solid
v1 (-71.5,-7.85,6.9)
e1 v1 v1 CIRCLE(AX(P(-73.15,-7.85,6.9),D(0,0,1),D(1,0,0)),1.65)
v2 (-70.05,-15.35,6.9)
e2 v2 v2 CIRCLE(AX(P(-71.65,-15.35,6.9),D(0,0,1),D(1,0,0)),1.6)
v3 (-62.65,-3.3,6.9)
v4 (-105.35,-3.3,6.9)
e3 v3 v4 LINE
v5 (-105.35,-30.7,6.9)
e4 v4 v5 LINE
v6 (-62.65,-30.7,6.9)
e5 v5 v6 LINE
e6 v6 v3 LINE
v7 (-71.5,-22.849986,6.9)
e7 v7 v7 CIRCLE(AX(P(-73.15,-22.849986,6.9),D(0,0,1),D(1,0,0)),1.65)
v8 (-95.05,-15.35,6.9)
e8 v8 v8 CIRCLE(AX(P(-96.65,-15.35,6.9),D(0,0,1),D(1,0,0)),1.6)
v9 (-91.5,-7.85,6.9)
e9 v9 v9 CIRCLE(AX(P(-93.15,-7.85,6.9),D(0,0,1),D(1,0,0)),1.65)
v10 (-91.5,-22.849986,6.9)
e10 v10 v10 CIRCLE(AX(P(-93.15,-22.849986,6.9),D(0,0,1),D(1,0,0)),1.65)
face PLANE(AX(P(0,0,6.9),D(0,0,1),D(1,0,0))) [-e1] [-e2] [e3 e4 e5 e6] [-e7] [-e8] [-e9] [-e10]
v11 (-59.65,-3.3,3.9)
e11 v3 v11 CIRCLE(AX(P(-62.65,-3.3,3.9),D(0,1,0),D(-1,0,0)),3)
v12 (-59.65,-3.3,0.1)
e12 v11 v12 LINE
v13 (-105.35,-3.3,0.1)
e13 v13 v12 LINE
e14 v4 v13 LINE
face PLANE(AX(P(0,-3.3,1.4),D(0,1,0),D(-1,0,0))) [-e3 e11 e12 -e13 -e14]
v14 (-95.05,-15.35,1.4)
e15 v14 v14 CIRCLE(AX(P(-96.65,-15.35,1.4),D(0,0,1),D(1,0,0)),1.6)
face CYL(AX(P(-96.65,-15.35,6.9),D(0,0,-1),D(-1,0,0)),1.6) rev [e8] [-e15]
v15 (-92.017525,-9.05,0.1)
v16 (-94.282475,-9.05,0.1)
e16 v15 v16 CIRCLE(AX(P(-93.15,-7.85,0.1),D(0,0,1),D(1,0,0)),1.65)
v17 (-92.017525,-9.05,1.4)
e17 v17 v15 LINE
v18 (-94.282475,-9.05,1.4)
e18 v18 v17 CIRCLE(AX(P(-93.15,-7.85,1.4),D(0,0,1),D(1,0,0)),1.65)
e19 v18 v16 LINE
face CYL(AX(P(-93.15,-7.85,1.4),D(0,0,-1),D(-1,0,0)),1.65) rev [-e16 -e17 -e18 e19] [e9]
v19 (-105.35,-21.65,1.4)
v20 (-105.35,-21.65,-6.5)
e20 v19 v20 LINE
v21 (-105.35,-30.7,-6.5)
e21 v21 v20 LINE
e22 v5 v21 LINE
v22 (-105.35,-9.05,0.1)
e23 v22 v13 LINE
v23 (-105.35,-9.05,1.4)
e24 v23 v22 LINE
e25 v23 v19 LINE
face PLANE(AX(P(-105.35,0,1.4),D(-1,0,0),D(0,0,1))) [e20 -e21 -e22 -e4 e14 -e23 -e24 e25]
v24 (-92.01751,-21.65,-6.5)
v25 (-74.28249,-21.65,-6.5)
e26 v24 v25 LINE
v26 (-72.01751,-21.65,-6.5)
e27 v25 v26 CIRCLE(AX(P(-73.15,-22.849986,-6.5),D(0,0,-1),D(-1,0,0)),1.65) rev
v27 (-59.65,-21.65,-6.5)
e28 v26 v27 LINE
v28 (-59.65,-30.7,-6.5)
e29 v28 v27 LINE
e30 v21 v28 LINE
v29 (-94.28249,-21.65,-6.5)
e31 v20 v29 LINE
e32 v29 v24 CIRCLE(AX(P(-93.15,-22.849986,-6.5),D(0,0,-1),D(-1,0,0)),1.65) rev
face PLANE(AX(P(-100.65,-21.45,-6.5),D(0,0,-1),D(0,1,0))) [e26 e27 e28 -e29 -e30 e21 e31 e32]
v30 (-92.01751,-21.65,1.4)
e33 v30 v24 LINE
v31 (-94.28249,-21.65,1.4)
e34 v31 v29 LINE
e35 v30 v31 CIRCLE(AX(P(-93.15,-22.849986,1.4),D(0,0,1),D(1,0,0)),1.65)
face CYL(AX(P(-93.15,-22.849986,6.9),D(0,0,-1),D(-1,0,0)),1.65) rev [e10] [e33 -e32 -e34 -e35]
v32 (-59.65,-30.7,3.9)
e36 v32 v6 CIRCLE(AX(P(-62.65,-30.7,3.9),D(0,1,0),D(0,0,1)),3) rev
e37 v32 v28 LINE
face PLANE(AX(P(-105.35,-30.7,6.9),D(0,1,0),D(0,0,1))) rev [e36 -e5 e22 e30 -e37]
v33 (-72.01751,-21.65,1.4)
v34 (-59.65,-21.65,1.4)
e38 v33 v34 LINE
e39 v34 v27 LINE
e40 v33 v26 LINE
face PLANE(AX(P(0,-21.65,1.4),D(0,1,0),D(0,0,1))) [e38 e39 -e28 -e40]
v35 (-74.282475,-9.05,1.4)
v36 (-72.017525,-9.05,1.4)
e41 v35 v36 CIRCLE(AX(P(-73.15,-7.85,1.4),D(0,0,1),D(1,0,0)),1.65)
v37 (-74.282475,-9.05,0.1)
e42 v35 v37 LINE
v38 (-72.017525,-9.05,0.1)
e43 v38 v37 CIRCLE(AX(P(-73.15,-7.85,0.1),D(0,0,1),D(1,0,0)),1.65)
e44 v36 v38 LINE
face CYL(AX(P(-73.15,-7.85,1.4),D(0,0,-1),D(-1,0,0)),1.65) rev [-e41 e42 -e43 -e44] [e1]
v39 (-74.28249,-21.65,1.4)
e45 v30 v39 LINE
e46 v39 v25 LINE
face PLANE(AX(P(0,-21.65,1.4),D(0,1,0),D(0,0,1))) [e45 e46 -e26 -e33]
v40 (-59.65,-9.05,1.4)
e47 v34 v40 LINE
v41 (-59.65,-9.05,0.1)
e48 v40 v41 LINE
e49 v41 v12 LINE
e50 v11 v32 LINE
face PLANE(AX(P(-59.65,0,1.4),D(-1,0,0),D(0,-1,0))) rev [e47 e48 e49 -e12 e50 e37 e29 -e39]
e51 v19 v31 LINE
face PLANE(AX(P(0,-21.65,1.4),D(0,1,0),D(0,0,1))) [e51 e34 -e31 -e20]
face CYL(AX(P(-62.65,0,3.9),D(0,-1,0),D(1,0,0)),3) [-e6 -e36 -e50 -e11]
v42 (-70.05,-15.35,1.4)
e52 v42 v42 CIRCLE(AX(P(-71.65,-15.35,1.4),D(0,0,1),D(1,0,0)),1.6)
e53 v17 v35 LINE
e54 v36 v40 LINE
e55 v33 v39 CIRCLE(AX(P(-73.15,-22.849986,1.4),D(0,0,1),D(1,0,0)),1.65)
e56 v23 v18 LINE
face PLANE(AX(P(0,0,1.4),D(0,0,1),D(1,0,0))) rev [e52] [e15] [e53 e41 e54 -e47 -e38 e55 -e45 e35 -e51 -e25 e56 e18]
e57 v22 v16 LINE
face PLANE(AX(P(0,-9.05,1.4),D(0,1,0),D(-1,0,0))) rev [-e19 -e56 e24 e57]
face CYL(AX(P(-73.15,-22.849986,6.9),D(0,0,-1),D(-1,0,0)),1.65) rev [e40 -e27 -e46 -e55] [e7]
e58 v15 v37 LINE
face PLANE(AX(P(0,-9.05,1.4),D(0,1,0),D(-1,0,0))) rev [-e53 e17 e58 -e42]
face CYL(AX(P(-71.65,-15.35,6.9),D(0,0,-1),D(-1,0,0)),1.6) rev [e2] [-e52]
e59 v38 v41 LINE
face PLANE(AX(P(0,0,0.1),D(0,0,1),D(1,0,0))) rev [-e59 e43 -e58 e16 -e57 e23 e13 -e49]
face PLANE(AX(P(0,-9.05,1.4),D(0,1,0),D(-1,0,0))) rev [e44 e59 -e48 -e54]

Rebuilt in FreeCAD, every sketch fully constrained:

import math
import FreeCAD as App
import Part
import Sketcher


def edges_at(feature, points):
    """Names of the edges that pass closest to the given points."""
    edges = feature.Shape.Edges
    near = lambda p: min(range(len(edges)), key=lambda i: edges[i].distToShape(Part.Vertex(*p))[0])
    return sorted({f"Edge{near(p) + 1}" for p in points})

doc = App.newDocument("Part")
body = doc.addObject("PartDesign::Body", "Body")

sketch1 = body.newObject("Sketcher::SketchObject", "Sketch")
sketch1.AttachmentSupport = (doc.getObject("XY_Plane"), [""])
sketch1.MapMode = "FlatFace"
sketch1.AttachmentOffset = App.Placement(App.Vector(0, 0, 0.1), App.Rotation())
sketch1.addGeometry([
    Part.LineSegment(App.Vector(-105.35, -3.3, 0), App.Vector(-105.35, -9.05, 0)),
    Part.LineSegment(App.Vector(-105.35, -9.05, 0), App.Vector(-94.282475, -9.05, 0)),
    Part.ArcOfCircle(Part.Circle(App.Vector(-93.15, -7.85, 0), App.Vector(0, 0, 1), 1.65), math.radians(0), math.radians(226.658242)),
    Part.ArcOfCircle(Part.Circle(App.Vector(-93.15, -7.85, 0), App.Vector(0, 0, 1), 1.65), math.radians(-46.658242), math.radians(0)),
    Part.LineSegment(App.Vector(-92.017525, -9.05, 0), App.Vector(-74.282475, -9.05, 0)),
    Part.ArcOfCircle(Part.Circle(App.Vector(-73.15, -7.85, 0), App.Vector(0, 0, 1), 1.65), math.radians(0), math.radians(226.658242)),
    Part.ArcOfCircle(Part.Circle(App.Vector(-73.15, -7.85, 0), App.Vector(0, 0, 1), 1.65), math.radians(-46.658242), math.radians(0)),
    Part.LineSegment(App.Vector(-72.017525, -9.05, 0), App.Vector(-59.65, -9.05, 0)),
    Part.LineSegment(App.Vector(-59.65, -9.05, 0), App.Vector(-59.65, -3.3, 0)),
    Part.LineSegment(App.Vector(-59.65, -3.3, 0), App.Vector(-105.35, -3.3, 0)),
], False)
sketch1.addConstraint([
    Sketcher.Constraint("Coincident", 0, 2, 1, 1),
    Sketcher.Constraint("Coincident", 1, 2, 2, 2),
    Sketcher.Constraint("Tangent", 2, 1, 3, 2),
    Sketcher.Constraint("Coincident", 3, 1, 4, 1),
    Sketcher.Constraint("Coincident", 4, 2, 5, 2),
    Sketcher.Constraint("Tangent", 5, 1, 6, 2),
    Sketcher.Constraint("Coincident", 6, 1, 7, 1),
    Sketcher.Constraint("Coincident", 7, 2, 8, 1),
    Sketcher.Constraint("Coincident", 8, 2, 9, 1),
    Sketcher.Constraint("Coincident", 9, 2, 0, 1),
    Sketcher.Constraint("Vertical", 0),
    Sketcher.Constraint("Horizontal", 1),
    Sketcher.Constraint("Horizontal", 4),
    Sketcher.Constraint("Horizontal", 7),
    Sketcher.Constraint("Vertical", 8),
    Sketcher.Constraint("Horizontal", 9),
    Sketcher.Constraint("Equal", 2, 3),
    Sketcher.Constraint("Equal", 3, 5),
    Sketcher.Constraint("Equal", 5, 6),
    Sketcher.Constraint("Horizontal", 3, 3, 5, 3),
    Sketcher.Constraint("Horizontal", 6, 3, 2, 1),
    Sketcher.Constraint("Horizontal", 1, 2, 3, 1),
    Sketcher.Constraint("Horizontal", 2, 1, 5, 1),
    Sketcher.Constraint("Horizontal", 4, 2, 6, 1),
    Sketcher.Constraint("Radius", 2, 1.65),
    Sketcher.Constraint("DistanceX", 9, 2, 9, 1, 45.7),
    Sketcher.Constraint("DistanceX", 3, 3, 5, 3, 20.0),
    Sketcher.Constraint("DistanceY", 0, 2, 0, 1, 5.75),
    Sketcher.Constraint("DistanceX", 2, 1, -1, 1, 91.5),
    Sketcher.Constraint("DistanceY", 8, 2, -1, 1, 3.3),
    Sketcher.Constraint("DistanceX", 0, 2, 2, 3, 12.2),
    Sketcher.Constraint("DistanceY", 0, 2, 2, 3, 1.2),
])
pad1 = body.newObject("PartDesign::Pad", "Pad")
pad1.Profile = sketch1
pad1.Length = 1.3
body2 = doc.addObject("PartDesign::Body", "Body001")

sketch2 = body2.newObject("Sketcher::SketchObject", "Sketch001")
sketch2.AttachmentSupport = (doc.getObject("XY_Plane001"), [""])
sketch2.MapMode = "FlatFace"
sketch2.AttachmentOffset = App.Placement(App.Vector(0, 0, 0.1), App.Rotation())
sketch2.addGeometry([
    Part.LineSegment(App.Vector(-105.35, -21.65, 0), App.Vector(-105.35, -30.7, 0)),
    Part.LineSegment(App.Vector(-105.35, -30.7, 0), App.Vector(-59.65, -30.7, 0)),
    Part.LineSegment(App.Vector(-59.65, -30.7, 0), App.Vector(-59.65, -21.65, 0)),
    Part.LineSegment(App.Vector(-59.65, -21.65, 0), App.Vector(-72.01751, -21.65, 0)),
    Part.ArcOfCircle(Part.Circle(App.Vector(-73.15, -22.849986, 0), App.Vector(0, 0, 1), 1.65), math.radians(0), math.radians(46.657557)),
    Part.ArcOfCircle(Part.Circle(App.Vector(-73.15, -22.849986, 0), App.Vector(0, 0, 1), 1.65), math.radians(133.342443), math.radians(360)),
    Part.LineSegment(App.Vector(-74.28249, -21.65, 0), App.Vector(-92.01751, -21.65, 0)),
    Part.ArcOfCircle(Part.Circle(App.Vector(-93.15, -22.849986, 0), App.Vector(0, 0, 1), 1.65), math.radians(0), math.radians(46.657557)),
    Part.ArcOfCircle(Part.Circle(App.Vector(-93.15, -22.849986, 0), App.Vector(0, 0, 1), 1.65), math.radians(133.342443), math.radians(360)),
    Part.LineSegment(App.Vector(-94.28249, -21.65, 0), App.Vector(-105.35, -21.65, 0)),
], False)
sketch2.addConstraint([
    Sketcher.Constraint("Coincident", 0, 2, 1, 1),
    Sketcher.Constraint("Coincident", 1, 2, 2, 1),
    Sketcher.Constraint("Coincident", 2, 2, 3, 1),
    Sketcher.Constraint("Coincident", 3, 2, 4, 2),
    Sketcher.Constraint("Tangent", 4, 1, 5, 2),
    Sketcher.Constraint("Coincident", 5, 1, 6, 1),
    Sketcher.Constraint("Coincident", 6, 2, 7, 2),
    Sketcher.Constraint("Tangent", 7, 1, 8, 2),
    Sketcher.Constraint("Coincident", 8, 1, 9, 1),
    Sketcher.Constraint("Coincident", 9, 2, 0, 1),
    Sketcher.Constraint("Vertical", 0),
    Sketcher.Constraint("Horizontal", 1),
    Sketcher.Constraint("Vertical", 2),
    Sketcher.Constraint("Horizontal", 3),
    Sketcher.Constraint("Horizontal", 6),
    Sketcher.Constraint("Horizontal", 9),
    Sketcher.Constraint("Equal", 4, 5),
    Sketcher.Constraint("Equal", 5, 7),
    Sketcher.Constraint("Equal", 7, 8),
    Sketcher.Constraint("Horizontal", 5, 3, 7, 3),
    Sketcher.Constraint("Horizontal", 8, 3, 4, 1),
    Sketcher.Constraint("Horizontal", 3, 2, 5, 1),
    Sketcher.Constraint("Horizontal", 4, 1, 7, 1),
    Sketcher.Constraint("Horizontal", 6, 2, 8, 1),
    Sketcher.Constraint("Radius", 4, 1.65),
    Sketcher.Constraint("DistanceX", 1, 1, 1, 2, 45.7),
    Sketcher.Constraint("DistanceX", 7, 3, 5, 3, 20.0),
    Sketcher.Constraint("DistanceY", 0, 2, 0, 1, 9.05),
    Sketcher.Constraint("DistanceY", 0, 2, -1, 1, 30.7),
    Sketcher.Constraint("DistanceX", 4, 1, -1, 1, 71.5),
    Sketcher.Constraint("DistanceX", 0, 2, 8, 3, 12.2),
    Sketcher.Constraint("DistanceX", 3, 2, 3, 1, 12.36751),
])
pad2 = body2.newObject("PartDesign::Pad", "Pad001")
pad2.Profile = sketch2
pad2.Type = "TwoLengths"
pad2.Length = 1.3
pad2.Length2 = 6.6
body.AllowCompound = True
doc.recompute()

boolean = body.newObject("PartDesign::Boolean", "Boolean")
boolean.Type = "Fuse"
boolean.addObjects([body2])

sketch3 = body.newObject("Sketcher::SketchObject", "Sketch002")
sketch3.AttachmentSupport = (doc.getObject("XY_Plane"), [""])
sketch3.MapMode = "FlatFace"
sketch3.AttachmentOffset = App.Placement(App.Vector(0, 0, 1.4), App.Rotation())
sketch3.addGeometry([
    Part.LineSegment(App.Vector(-105.35, -3.3, 0), App.Vector(-105.35, -30.7, 0)),
    Part.LineSegment(App.Vector(-105.35, -30.7, 0), App.Vector(-59.65, -30.7, 0)),
    Part.LineSegment(App.Vector(-59.65, -30.7, 0), App.Vector(-59.65, -3.3, 0)),
    Part.LineSegment(App.Vector(-59.65, -3.3, 0), App.Vector(-105.35, -3.3, 0)),
    Part.Circle(App.Vector(-93.15, -22.849986, 0), App.Vector(0, 0, 1), 1.65),
    Part.Circle(App.Vector(-96.65, -15.35, 0), App.Vector(0, 0, 1), 1.6),
    Part.Circle(App.Vector(-73.15, -22.849986, 0), App.Vector(0, 0, 1), 1.65),
    Part.Circle(App.Vector(-71.65, -15.35, 0), App.Vector(0, 0, 1), 1.6),
    Part.Circle(App.Vector(-93.15, -7.85, 0), App.Vector(0, 0, 1), 1.65),
    Part.Circle(App.Vector(-73.15, -7.85, 0), App.Vector(0, 0, 1), 1.65),
], False)
sketch3.addConstraint([
    Sketcher.Constraint("Coincident", 0, 2, 1, 1),
    Sketcher.Constraint("Coincident", 1, 2, 2, 1),
    Sketcher.Constraint("Coincident", 2, 2, 3, 1),
    Sketcher.Constraint("Coincident", 3, 2, 0, 1),
    Sketcher.Constraint("Vertical", 0),
    Sketcher.Constraint("Horizontal", 1),
    Sketcher.Constraint("Vertical", 2),
    Sketcher.Constraint("Horizontal", 3),
    Sketcher.Constraint("Equal", 4, 6),
    Sketcher.Constraint("Equal", 5, 7),
    Sketcher.Constraint("Equal", 6, 8),
    Sketcher.Constraint("Equal", 8, 9),
    Sketcher.Constraint("Horizontal", 4, 3, 6, 3),
    Sketcher.Constraint("Horizontal", 5, 3, 7, 3),
    Sketcher.Constraint("Horizontal", 8, 3, 9, 3),
    Sketcher.Constraint("Vertical", 4, 3, 8, 3),
    Sketcher.Constraint("Vertical", 6, 3, 9, 3),
    Sketcher.Constraint("Diameter", 4, 3.3),
    Sketcher.Constraint("Diameter", 5, 3.2),
    Sketcher.Constraint("DistanceX", 1, 1, 1, 2, 45.7),
    Sketcher.Constraint("DistanceY", 0, 2, 0, 1, 27.4),
    Sketcher.Constraint("DistanceX", 4, 3, 6, 3, 20.0),
    Sketcher.Constraint("DistanceX", 5, 3, 7, 3, 25.0),
    Sketcher.Constraint("DistanceX", 7, 3, 1, 2, 12.0),
    Sketcher.Constraint("DistanceY", 0, 2, -1, 1, 30.7),
    Sketcher.Constraint("DistanceX", 5, 3, 4, 3, 3.5),
    Sketcher.Constraint("DistanceY", 5, 3, 8, 3, 7.5),
    Sketcher.Constraint("DistanceX", 4, 3, -1, 1, 93.15),
    Sketcher.Constraint("DistanceY", 5, 3, -1, 1, 15.35),
    Sketcher.Constraint("DistanceY", 4, 3, -1, 1, 22.849986),
])
pad3 = body.newObject("PartDesign::Pad", "Pad002")
pad3.Profile = sketch3
pad3.Length = 5.5
doc.recompute()

fillet = body.newObject("PartDesign::Fillet", "Fillet")
fillet.Base = (pad3, edges_at(pad3, [(-59.65, -17, 6.9)]))
fillet.Radius = 3

doc.recompute()
